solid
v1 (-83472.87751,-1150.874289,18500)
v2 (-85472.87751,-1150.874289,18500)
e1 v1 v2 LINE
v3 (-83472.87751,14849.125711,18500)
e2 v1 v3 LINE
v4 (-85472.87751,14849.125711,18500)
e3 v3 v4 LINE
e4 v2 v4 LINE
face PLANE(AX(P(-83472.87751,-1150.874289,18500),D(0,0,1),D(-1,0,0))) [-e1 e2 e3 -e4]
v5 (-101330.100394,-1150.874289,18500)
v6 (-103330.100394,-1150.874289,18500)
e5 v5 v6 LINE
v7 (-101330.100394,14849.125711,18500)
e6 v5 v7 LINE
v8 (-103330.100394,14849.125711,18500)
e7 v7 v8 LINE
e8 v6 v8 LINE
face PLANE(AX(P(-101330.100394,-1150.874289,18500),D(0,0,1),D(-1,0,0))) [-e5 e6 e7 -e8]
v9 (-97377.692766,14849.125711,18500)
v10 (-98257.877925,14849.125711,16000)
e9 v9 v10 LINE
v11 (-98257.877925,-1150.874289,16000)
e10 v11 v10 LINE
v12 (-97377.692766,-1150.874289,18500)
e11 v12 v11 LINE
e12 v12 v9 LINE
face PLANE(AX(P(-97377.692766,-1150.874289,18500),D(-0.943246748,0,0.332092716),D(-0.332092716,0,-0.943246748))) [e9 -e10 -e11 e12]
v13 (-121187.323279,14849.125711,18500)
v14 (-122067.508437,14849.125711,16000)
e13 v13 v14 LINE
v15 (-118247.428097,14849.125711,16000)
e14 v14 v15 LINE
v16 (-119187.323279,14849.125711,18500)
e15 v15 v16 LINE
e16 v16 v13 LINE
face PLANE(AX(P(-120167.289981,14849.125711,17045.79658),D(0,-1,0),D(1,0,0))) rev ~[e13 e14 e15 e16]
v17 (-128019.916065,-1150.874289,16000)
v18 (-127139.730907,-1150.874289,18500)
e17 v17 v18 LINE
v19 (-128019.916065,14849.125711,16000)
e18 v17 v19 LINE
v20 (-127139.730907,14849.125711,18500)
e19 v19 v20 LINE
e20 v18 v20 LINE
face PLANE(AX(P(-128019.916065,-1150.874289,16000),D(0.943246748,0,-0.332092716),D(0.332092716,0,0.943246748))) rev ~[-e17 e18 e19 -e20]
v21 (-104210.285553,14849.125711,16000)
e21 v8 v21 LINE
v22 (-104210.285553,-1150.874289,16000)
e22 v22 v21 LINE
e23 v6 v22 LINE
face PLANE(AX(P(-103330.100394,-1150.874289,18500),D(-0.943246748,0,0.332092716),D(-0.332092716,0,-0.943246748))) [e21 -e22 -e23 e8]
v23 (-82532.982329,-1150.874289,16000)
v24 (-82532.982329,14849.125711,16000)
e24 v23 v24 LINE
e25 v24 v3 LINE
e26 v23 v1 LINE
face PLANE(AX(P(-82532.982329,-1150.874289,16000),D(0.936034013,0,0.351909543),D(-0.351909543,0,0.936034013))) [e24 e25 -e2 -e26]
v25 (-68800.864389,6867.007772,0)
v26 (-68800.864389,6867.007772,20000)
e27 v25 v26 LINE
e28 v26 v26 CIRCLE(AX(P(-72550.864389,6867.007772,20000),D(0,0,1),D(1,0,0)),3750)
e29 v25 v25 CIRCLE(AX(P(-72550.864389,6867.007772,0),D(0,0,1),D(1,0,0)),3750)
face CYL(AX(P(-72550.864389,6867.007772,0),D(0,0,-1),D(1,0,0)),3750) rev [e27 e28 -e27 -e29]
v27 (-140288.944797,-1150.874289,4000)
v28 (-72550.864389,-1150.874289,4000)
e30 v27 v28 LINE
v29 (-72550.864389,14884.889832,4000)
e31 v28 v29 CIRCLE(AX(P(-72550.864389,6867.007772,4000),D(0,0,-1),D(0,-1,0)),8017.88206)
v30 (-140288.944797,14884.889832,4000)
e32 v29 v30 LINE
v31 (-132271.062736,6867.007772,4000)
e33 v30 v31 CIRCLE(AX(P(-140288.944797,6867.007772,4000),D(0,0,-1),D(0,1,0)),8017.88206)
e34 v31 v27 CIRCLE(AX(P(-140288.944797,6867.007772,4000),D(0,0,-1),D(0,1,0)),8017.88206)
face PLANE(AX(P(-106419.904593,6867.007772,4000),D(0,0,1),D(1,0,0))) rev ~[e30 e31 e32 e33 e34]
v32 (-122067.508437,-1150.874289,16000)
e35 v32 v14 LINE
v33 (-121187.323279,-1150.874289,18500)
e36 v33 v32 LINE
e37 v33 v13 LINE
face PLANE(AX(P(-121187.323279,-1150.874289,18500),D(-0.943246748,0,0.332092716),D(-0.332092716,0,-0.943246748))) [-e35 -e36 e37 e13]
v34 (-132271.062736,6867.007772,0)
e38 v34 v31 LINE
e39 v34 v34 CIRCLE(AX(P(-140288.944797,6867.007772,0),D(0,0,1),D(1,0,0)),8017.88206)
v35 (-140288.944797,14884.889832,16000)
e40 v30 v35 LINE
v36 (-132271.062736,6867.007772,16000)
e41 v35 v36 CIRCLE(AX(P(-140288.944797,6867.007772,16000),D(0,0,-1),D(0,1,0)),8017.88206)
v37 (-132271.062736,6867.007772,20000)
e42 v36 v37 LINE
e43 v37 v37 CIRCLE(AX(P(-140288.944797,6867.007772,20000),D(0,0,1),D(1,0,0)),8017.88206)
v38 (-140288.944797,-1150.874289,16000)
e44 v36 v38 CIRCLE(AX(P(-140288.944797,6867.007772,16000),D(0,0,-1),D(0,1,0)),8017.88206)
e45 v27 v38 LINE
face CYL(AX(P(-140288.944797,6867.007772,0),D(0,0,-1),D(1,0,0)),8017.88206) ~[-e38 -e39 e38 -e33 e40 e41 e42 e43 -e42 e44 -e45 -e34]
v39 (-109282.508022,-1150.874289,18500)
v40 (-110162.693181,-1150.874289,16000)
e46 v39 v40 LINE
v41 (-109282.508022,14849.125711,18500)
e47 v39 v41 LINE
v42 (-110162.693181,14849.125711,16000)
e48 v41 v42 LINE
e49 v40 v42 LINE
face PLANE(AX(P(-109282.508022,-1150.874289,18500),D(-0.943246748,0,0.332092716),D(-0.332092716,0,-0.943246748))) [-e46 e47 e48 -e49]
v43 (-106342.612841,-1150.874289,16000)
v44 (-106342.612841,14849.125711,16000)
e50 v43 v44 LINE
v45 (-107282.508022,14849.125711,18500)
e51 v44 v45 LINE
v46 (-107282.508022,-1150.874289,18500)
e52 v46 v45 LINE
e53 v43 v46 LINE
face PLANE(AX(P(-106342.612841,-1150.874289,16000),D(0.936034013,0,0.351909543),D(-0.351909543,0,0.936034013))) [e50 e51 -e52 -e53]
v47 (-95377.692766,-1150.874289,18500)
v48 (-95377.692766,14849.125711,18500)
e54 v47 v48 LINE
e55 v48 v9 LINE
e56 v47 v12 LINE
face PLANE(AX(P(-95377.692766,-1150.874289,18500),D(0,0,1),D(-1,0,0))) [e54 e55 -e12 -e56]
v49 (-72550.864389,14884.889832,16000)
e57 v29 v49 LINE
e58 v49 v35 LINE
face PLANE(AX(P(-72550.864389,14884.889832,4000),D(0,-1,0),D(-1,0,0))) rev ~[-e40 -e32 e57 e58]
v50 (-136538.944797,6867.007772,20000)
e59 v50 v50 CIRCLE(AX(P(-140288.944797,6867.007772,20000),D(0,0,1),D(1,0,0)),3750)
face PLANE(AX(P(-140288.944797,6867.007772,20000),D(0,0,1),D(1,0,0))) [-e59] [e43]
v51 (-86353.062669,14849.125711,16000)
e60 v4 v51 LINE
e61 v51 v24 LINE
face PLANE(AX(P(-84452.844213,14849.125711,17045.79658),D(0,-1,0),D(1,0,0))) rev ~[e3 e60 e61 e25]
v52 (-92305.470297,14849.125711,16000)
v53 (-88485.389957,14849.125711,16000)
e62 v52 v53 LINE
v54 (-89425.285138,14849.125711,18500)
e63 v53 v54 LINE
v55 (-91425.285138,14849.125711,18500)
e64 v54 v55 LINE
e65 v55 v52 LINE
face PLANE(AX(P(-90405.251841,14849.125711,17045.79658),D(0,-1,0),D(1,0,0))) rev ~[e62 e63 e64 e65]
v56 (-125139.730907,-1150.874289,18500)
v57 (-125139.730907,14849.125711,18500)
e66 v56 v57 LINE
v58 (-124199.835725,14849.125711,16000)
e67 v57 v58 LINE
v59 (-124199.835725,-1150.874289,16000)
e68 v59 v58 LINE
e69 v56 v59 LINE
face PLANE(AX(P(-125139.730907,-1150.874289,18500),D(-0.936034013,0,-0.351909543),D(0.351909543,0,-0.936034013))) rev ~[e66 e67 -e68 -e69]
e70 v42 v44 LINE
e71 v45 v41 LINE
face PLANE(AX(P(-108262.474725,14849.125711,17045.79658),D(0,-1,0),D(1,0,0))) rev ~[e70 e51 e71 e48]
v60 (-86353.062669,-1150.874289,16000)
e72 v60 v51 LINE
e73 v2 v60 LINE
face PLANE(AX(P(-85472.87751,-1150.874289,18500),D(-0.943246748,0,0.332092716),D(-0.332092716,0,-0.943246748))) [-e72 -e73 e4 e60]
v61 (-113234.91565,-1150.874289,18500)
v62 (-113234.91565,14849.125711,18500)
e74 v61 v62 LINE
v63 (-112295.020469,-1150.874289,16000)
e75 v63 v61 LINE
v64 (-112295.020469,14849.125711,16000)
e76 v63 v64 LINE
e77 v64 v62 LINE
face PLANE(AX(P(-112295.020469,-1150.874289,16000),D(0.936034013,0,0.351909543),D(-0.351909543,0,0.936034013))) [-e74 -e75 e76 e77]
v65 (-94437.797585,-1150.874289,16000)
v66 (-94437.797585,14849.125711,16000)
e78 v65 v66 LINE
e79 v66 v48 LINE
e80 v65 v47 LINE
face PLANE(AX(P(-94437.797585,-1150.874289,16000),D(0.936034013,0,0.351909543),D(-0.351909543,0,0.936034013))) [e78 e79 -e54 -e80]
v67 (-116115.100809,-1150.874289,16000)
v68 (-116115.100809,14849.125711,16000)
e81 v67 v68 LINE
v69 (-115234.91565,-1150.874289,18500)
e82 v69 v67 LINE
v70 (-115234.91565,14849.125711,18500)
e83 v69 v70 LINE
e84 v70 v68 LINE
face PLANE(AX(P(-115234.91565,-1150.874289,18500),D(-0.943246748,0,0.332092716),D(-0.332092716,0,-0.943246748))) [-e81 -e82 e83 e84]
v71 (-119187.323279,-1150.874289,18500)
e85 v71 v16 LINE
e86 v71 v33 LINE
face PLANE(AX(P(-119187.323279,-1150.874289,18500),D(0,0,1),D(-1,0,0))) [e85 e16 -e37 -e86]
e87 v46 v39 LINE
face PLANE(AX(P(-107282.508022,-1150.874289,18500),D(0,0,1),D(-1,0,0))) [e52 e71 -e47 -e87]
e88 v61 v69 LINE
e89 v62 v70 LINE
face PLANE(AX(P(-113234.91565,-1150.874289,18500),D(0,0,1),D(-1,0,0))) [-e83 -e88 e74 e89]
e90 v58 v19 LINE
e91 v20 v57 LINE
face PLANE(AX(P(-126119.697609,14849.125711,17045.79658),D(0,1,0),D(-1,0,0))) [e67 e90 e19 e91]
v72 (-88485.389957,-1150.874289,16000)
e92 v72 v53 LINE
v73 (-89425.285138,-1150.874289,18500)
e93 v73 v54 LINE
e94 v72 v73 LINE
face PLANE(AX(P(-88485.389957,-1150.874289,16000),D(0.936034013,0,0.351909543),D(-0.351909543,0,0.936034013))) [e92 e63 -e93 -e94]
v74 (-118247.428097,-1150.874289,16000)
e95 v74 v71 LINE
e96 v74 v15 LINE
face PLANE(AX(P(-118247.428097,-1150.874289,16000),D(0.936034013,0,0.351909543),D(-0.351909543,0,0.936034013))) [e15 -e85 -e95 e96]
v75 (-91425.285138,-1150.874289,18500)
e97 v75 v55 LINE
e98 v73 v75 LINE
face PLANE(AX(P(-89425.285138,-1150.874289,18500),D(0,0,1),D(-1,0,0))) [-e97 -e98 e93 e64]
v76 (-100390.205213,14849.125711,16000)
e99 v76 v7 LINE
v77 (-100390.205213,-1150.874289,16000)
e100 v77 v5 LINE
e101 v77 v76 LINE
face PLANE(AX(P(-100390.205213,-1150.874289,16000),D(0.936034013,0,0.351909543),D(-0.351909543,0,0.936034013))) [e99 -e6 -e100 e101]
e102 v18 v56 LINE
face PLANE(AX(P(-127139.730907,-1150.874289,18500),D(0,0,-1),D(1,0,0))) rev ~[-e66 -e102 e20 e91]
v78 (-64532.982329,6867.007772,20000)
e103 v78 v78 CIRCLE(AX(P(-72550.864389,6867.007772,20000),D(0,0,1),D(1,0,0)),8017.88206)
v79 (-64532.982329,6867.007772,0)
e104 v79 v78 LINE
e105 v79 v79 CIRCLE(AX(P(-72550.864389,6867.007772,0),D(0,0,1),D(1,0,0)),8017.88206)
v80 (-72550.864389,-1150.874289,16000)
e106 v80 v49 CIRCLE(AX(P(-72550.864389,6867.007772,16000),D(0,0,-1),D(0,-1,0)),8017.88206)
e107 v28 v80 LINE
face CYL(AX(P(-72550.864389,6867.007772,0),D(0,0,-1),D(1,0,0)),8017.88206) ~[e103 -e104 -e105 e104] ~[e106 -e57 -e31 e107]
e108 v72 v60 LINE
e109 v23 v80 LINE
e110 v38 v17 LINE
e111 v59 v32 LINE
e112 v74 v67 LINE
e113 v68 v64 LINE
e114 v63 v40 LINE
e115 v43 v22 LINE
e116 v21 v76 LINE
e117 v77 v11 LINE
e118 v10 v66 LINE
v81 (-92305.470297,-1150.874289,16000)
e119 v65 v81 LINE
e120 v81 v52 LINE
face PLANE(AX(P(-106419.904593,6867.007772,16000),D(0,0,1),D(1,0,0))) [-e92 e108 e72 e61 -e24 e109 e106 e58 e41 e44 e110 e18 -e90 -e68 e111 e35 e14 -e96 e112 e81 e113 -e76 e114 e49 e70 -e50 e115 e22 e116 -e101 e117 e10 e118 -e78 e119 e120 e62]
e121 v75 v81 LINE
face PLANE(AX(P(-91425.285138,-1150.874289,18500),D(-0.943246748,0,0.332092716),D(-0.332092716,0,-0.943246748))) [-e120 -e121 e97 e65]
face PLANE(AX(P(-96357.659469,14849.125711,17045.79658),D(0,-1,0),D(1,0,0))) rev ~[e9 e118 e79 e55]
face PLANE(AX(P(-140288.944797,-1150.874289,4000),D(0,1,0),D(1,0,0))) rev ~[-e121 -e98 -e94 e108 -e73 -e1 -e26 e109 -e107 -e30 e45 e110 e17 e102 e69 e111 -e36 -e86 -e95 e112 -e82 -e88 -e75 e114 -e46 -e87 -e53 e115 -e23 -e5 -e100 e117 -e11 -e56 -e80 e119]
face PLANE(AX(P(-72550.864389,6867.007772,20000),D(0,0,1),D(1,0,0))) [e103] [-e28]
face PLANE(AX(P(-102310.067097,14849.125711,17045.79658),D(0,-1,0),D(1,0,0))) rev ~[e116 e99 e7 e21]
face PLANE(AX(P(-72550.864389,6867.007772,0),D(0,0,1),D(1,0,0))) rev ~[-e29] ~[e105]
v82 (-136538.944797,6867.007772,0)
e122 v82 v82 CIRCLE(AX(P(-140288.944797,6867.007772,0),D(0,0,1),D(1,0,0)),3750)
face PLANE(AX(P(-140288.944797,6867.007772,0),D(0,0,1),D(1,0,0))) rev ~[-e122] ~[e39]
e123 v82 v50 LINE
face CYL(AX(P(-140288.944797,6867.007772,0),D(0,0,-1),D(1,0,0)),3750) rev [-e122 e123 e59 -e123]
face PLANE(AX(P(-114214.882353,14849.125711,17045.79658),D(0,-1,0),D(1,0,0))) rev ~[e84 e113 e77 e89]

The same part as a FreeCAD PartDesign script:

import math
import FreeCAD as App
import Part
import Sketcher
from FreeCAD import Vector
Q = App.Units.Quantity

doc = App.newDocument("Part")
params = doc.addObject("Spreadsheet::Sheet", "Params")
for row, (alias, value) in enumerate([
    ("sketch1_diameter", "7500 mm"),
    ("pad1_length", "20000 mm"),
    ("sketch2_diameter", "7500 mm"),
    ("pad2_length", "20000 mm"),
    ("pad3_length", "12000 mm"),
    ("sketch4_width", "2000 mm"),
    ("pad4_length", "16000 mm"),
], start=1):
    params.set(f"A{row}", alias)
    params.set(f"B{row}", "=" + value)
    params.setAlias(f"B{row}", alias)

body = doc.addObject("PartDesign::Body", "Body")

# Sketch on XY plane
sketch1 = body.newObject("Sketcher::SketchObject", "Sketch")
sketch1.AttachmentSupport = (doc.getObject("XY_Plane"), [""])
sketch1.MapMode = "FlatFace"
sketch1.addGeometry([
    Part.Circle(Vector(-140289, 6867, 0), Vector(0, 0, 1), 8018),
    Part.Circle(Vector(-140289, 6867, 0), Vector(0, 0, 1), 3750),
], False)
sketch1.addConstraint([
    Sketcher.Constraint("Coincident", 1, 3, 0, 3),
    Sketcher.Constraint("Diameter", 1, Q("7500 mm")),
    Sketcher.Constraint("Diameter", 0, Q("16035.764121 mm")),
    Sketcher.Constraint("DistanceY", -1, 1, 0, 3, Q("6867.007772 mm")),
    Sketcher.Constraint("DistanceX", 0, 3, -1, 1, Q("140288.944797 mm")),
])
sketch1.setExpression("Constraints[1]", "Params.sketch1_diameter")
pad1 = body.newObject("PartDesign::Pad", "Pad")
pad1.Profile = sketch1
pad1.setExpression("Length", "Params.pad1_length")
body2 = doc.addObject("PartDesign::Body", "Body001")

# Sketch on XY plane
sketch2 = body2.newObject("Sketcher::SketchObject", "Sketch001")
sketch2.AttachmentSupport = (doc.getObject("XY_Plane001"), [""])
sketch2.MapMode = "FlatFace"
sketch2.addGeometry([
    Part.Circle(Vector(-72551, 6867, 0), Vector(0, 0, 1), 8018),
    Part.Circle(Vector(-72551, 6867, 0), Vector(0, 0, 1), 3750),
], False)
sketch2.addConstraint([
    Sketcher.Constraint("Coincident", 1, 3, 0, 3),
    Sketcher.Constraint("Diameter", 1, Q("7500 mm")),
    Sketcher.Constraint("Diameter", 0, Q("16035.764121 mm")),
    Sketcher.Constraint("DistanceX", 0, 3, -1, 1, Q("72550.864389 mm")),
    Sketcher.Constraint("DistanceY", -1, 1, 0, 3, Q("6867.007772 mm")),
])
sketch2.setExpression("Constraints[1]", "Params.sketch2_diameter")
pad2 = body2.newObject("PartDesign::Pad", "Pad001")
pad2.Profile = sketch2
pad2.setExpression("Length", "Params.pad2_length")
body.AllowCompound = True
doc.recompute()

boolean = body.newObject("PartDesign::Boolean", "Boolean")
boolean.Type = "Fuse"
boolean.addObjects([body2])

# Sketch on XY plane
sketch3 = body.newObject("Sketcher::SketchObject", "Sketch002")
sketch3.AttachmentSupport = (doc.getObject("XY_Plane"), [""])
sketch3.MapMode = "FlatFace"
sketch3.AttachmentOffset = App.Placement(Vector(0, 0, 4000), App.Rotation())
sketch3.addGeometry([
    Part.LineSegment(Vector(-72551, 14885, 0), Vector(-140289, 14885, 0)),
    Part.ArcOfCircle(Part.Circle(Vector(-140289, 6867, 0), Vector(0, 0, 1), 8018), math.radians(-90), math.radians(90)),
    Part.LineSegment(Vector(-140289, -1151, 0), Vector(-72551, -1151, 0)),
    Part.ArcOfCircle(Part.Circle(Vector(-72551, 6867, 0), Vector(0, 0, 1), 8018), math.radians(90), math.radians(270)),
], False)
sketch3.addConstraint([
    Sketcher.Constraint("Coincident", 0, 2, 1, 2),
    Sketcher.Constraint("Coincident", 1, 1, 2, 1),
    Sketcher.Constraint("Coincident", 2, 2, 3, 2),
    Sketcher.Constraint("Coincident", 3, 1, 0, 1),
    Sketcher.Constraint("Horizontal", 0),
    Sketcher.Constraint("Horizontal", 2),
    Sketcher.Constraint("Vertical", 1, 3, 0, 2),
    Sketcher.Constraint("Vertical", 3, 3, 2, 2),
    Sketcher.Constraint("Equal", 0, 2),
    Sketcher.Constraint("Radius", 1, Q("8017.88206 mm")),
    Sketcher.Constraint("DistanceX", 0, 2, 0, 1, Q("67738.080408 mm")),
    Sketcher.Constraint("DistanceY", -1, 1, 1, 3, Q("6867.007772 mm")),
    Sketcher.Constraint("DistanceX", 3, 3, -1, 1, Q("72550.864389 mm")),
    Sketcher.Constraint("DistanceX", 1, 3, -1, 1, Q("140288.944797 mm")),
])
pad3 = body.newObject("PartDesign::Pad", "Pad002")
pad3.Profile = sketch3
pad3.setExpression("Length", "Params.pad3_length")

# Sketch on XZ plane
sketch4 = body.newObject("Sketcher::SketchObject", "Sketch003")
sketch4.AttachmentSupport = (doc.getObject("XZ_Plane"), [""])
sketch4.MapMode = "FlatFace"
sketch4.AttachmentOffset = App.Placement(Vector(0, 0, 1150.874289), App.Rotation())
sketch4.addGeometry([
    Part.LineSegment(Vector(-122068, 16000, 0), Vector(-118247, 16000, 0)),  # 0
    Part.LineSegment(Vector(-118247, 16000, 0), Vector(-119187, 18500, 0)),  # 1
    Part.LineSegment(Vector(-119187, 18500, 0), Vector(-121187, 18500, 0)),  # 2
    Part.LineSegment(Vector(-121187, 18500, 0), Vector(-122068, 16000, 0)),  # 3
    Part.LineSegment(Vector(-116115, 16000, 0), Vector(-112295, 16000, 0)),  # 4
    Part.LineSegment(Vector(-112295, 16000, 0), Vector(-113235, 18500, 0)),  # 5
    Part.LineSegment(Vector(-113235, 18500, 0), Vector(-115235, 18500, 0)),  # 6
    Part.LineSegment(Vector(-115235, 18500, 0), Vector(-116115, 16000, 0)),  # 7
    Part.LineSegment(Vector(-110163, 16000, 0), Vector(-106343, 16000, 0)),  # 8
    Part.LineSegment(Vector(-106343, 16000, 0), Vector(-107283, 18500, 0)),  # 9
    Part.LineSegment(Vector(-107283, 18500, 0), Vector(-109283, 18500, 0)),  # 10
    Part.LineSegment(Vector(-109283, 18500, 0), Vector(-110163, 16000, 0)),  # 11
    Part.LineSegment(Vector(-104210, 16000, 0), Vector(-100390, 16000, 0)),  # 12
    Part.LineSegment(Vector(-100390, 16000, 0), Vector(-101330, 18500, 0)),  # 13
    Part.LineSegment(Vector(-101330, 18500, 0), Vector(-103330, 18500, 0)),  # 14
    Part.LineSegment(Vector(-103330, 18500, 0), Vector(-104210, 16000, 0)),  # 15
    Part.LineSegment(Vector(-98258, 16000, 0), Vector(-94438, 16000, 0)),  # 16
    Part.LineSegment(Vector(-94438, 16000, 0), Vector(-95378, 18500, 0)),  # 17
    Part.LineSegment(Vector(-95378, 18500, 0), Vector(-97378, 18500, 0)),  # 18
    Part.LineSegment(Vector(-97378, 18500, 0), Vector(-98258, 16000, 0)),  # 19
    Part.LineSegment(Vector(-92305, 16000, 0), Vector(-88485, 16000, 0)),  # 20
    Part.LineSegment(Vector(-88485, 16000, 0), Vector(-89425, 18500, 0)),  # 21
    Part.LineSegment(Vector(-89425, 18500, 0), Vector(-91425, 18500, 0)),  # 22
    Part.LineSegment(Vector(-91425, 18500, 0), Vector(-92305, 16000, 0)),  # 23
    Part.LineSegment(Vector(-85473, 18500, 0), Vector(-86353, 16000, 0)),  # 24
    Part.LineSegment(Vector(-86353, 16000, 0), Vector(-82533, 16000, 0)),  # 25
    Part.LineSegment(Vector(-82533, 16000, 0), Vector(-83473, 18500, 0)),  # 26
    Part.LineSegment(Vector(-83473, 18500, 0), Vector(-85473, 18500, 0)),  # 27
    Part.LineSegment(Vector(-127140, 18500, 0), Vector(-128020, 16000, 0)),  # 28
    Part.LineSegment(Vector(-128020, 16000, 0), Vector(-124200, 16000, 0)),  # 29
    Part.LineSegment(Vector(-124200, 16000, 0), Vector(-125140, 18500, 0)),  # 30
    Part.LineSegment(Vector(-125140, 18500, 0), Vector(-127140, 18500, 0)),  # 31
], False)
sketch4.addConstraint([
    Sketcher.Constraint("Coincident", 0, 2, 1, 1),
    Sketcher.Constraint("Coincident", 1, 2, 2, 1),
    Sketcher.Constraint("Coincident", 2, 2, 3, 1),
    Sketcher.Constraint("Coincident", 3, 2, 0, 1),
    Sketcher.Constraint("Coincident", 4, 2, 5, 1),
    Sketcher.Constraint("Coincident", 5, 2, 6, 1),
    Sketcher.Constraint("Coincident", 6, 2, 7, 1),
    Sketcher.Constraint("Coincident", 7, 2, 4, 1),
    Sketcher.Constraint("Coincident", 8, 2, 9, 1),
    Sketcher.Constraint("Coincident", 9, 2, 10, 1),
    Sketcher.Constraint("Coincident", 10, 2, 11, 1),
    Sketcher.Constraint("Coincident", 11, 2, 8, 1),
    Sketcher.Constraint("Coincident", 12, 2, 13, 1),
    Sketcher.Constraint("Coincident", 13, 2, 14, 1),
    Sketcher.Constraint("Coincident", 14, 2, 15, 1),
    Sketcher.Constraint("Coincident", 15, 2, 12, 1),
    Sketcher.Constraint("Coincident", 16, 2, 17, 1),
    Sketcher.Constraint("Coincident", 17, 2, 18, 1),
    Sketcher.Constraint("Coincident", 18, 2, 19, 1),
    Sketcher.Constraint("Coincident", 19, 2, 16, 1),
    Sketcher.Constraint("Coincident", 20, 2, 21, 1),
    Sketcher.Constraint("Coincident", 21, 2, 22, 1),
    Sketcher.Constraint("Coincident", 22, 2, 23, 1),
    Sketcher.Constraint("Coincident", 23, 2, 20, 1),
    Sketcher.Constraint("Coincident", 24, 2, 25, 1),
    Sketcher.Constraint("Coincident", 25, 2, 26, 1),
    Sketcher.Constraint("Coincident", 26, 2, 27, 1),
    Sketcher.Constraint("Coincident", 27, 2, 24, 1),
    Sketcher.Constraint("Coincident", 28, 2, 29, 1),
    Sketcher.Constraint("Coincident", 29, 2, 30, 1),
    Sketcher.Constraint("Coincident", 30, 2, 31, 1),
    Sketcher.Constraint("Coincident", 31, 2, 28, 1),
    Sketcher.Constraint("Horizontal", 0),
    Sketcher.Constraint("Horizontal", 2),
    Sketcher.Constraint("Horizontal", 4),
    Sketcher.Constraint("Horizontal", 6),
    Sketcher.Constraint("Horizontal", 8),
    Sketcher.Constraint("Horizontal", 10),
    Sketcher.Constraint("Horizontal", 12),
    Sketcher.Constraint("Horizontal", 14),
    Sketcher.Constraint("Horizontal", 16),
    Sketcher.Constraint("Horizontal", 18),
    Sketcher.Constraint("Horizontal", 20),
    Sketcher.Constraint("Horizontal", 22),
    Sketcher.Constraint("Horizontal", 25),
    Sketcher.Constraint("Horizontal", 27),
    Sketcher.Constraint("Horizontal", 29),
    Sketcher.Constraint("Horizontal", 31),
    Sketcher.Constraint("Parallel", 1, 5),
    Sketcher.Constraint("Parallel", 3, 7),
    Sketcher.Constraint("Parallel", 5, 9),
    Sketcher.Constraint("Parallel", 7, 11),
    Sketcher.Constraint("Parallel", 9, 13),
    Sketcher.Constraint("Parallel", 11, 15),
    Sketcher.Constraint("Parallel", 13, 17),
    Sketcher.Constraint("Parallel", 15, 19),
    Sketcher.Constraint("Parallel", 17, 21),
    Sketcher.Constraint("Parallel", 19, 23),
    Sketcher.Constraint("Parallel", 23, 24),
    Sketcher.Constraint("Parallel", 21, 26),
    Sketcher.Constraint("Parallel", 24, 28),
    Sketcher.Constraint("Parallel", 26, 30),
    Sketcher.Constraint("Horizontal", 3, 2, 4, 2),
    Sketcher.Constraint("Horizontal", 2, 2, 5, 2),
    Sketcher.Constraint("Horizontal", 7, 2, 8, 2),
    Sketcher.Constraint("Horizontal", 6, 2, 9, 2),
    Sketcher.Constraint("Horizontal", 11, 2, 12, 2),
    Sketcher.Constraint("Horizontal", 10, 2, 13, 2),
    Sketcher.Constraint("Horizontal", 15, 2, 16, 2),
    Sketcher.Constraint("Horizontal", 14, 2, 17, 2),
    Sketcher.Constraint("Horizontal", 19, 2, 20, 2),
    Sketcher.Constraint("Horizontal", 18, 2, 21, 2),
    Sketcher.Constraint("Horizontal", 23, 2, 24, 2),
    Sketcher.Constraint("Horizontal", 22, 2, 26, 2),
    Sketcher.Constraint("Horizontal", 25, 2, 28, 2),
    Sketcher.Constraint("Horizontal", 27, 2, 30, 2),
    Sketcher.Constraint("Equal", 0, 4),
    Sketcher.Constraint("Equal", 4, 8),
    Sketcher.Constraint("Equal", 8, 12),
    Sketcher.Constraint("Equal", 12, 16),
    Sketcher.Constraint("Equal", 16, 20),
    Sketcher.Constraint("Equal", 20, 25),
    Sketcher.Constraint("Equal", 25, 29),
    Sketcher.Constraint("DistanceX", 2, 2, 2, 1, Q("2000 mm")),
    Sketcher.Constraint("DistanceY", -1, 1, 0, 2, Q("16000 mm")),
    Sketcher.Constraint("DistanceY", -1, 1, 1, 2, Q("18500 mm")),
    Sketcher.Constraint("DistanceX", 0, 1, 0, 2, Q("3820.08034 mm")),
    Sketcher.Constraint("Distance", 3, Q("2650.41995 mm")),
    Sketcher.Constraint("DistanceX", 1, 2, -1, 1, Q("119187.323279 mm")),
    Sketcher.Constraint("DistanceX", 4, 2, -1, 1, Q("112295.020469 mm")),
    Sketcher.Constraint("DistanceX", 8, 2, -1, 1, Q("106342.612841 mm")),
    Sketcher.Constraint("DistanceX", 21, 2, -1, 1, Q("89425.285138 mm")),
    Sketcher.Constraint("DistanceX", 24, 2, -1, 1, Q("86353.062669 mm")),
    Sketcher.Constraint("DistanceX", 8, 2, 12, 2, Q("5952.407628 mm")),
    Sketcher.Constraint("DistanceX", 12, 2, 16, 2, Q("5952.407628 mm")),
    Sketcher.Constraint("DistanceX", 28, 2, 3, 2, Q("5952.407628 mm")),
])
sketch4.setExpression("Constraints[83]", "Params.sketch4_width")
pad4 = body.newObject("PartDesign::Pad", "Pad003")
pad4.Profile = sketch4
pad4.setExpression("Length", "Params.pad4_length")
pad4.Reversed = True

doc.recompute()
